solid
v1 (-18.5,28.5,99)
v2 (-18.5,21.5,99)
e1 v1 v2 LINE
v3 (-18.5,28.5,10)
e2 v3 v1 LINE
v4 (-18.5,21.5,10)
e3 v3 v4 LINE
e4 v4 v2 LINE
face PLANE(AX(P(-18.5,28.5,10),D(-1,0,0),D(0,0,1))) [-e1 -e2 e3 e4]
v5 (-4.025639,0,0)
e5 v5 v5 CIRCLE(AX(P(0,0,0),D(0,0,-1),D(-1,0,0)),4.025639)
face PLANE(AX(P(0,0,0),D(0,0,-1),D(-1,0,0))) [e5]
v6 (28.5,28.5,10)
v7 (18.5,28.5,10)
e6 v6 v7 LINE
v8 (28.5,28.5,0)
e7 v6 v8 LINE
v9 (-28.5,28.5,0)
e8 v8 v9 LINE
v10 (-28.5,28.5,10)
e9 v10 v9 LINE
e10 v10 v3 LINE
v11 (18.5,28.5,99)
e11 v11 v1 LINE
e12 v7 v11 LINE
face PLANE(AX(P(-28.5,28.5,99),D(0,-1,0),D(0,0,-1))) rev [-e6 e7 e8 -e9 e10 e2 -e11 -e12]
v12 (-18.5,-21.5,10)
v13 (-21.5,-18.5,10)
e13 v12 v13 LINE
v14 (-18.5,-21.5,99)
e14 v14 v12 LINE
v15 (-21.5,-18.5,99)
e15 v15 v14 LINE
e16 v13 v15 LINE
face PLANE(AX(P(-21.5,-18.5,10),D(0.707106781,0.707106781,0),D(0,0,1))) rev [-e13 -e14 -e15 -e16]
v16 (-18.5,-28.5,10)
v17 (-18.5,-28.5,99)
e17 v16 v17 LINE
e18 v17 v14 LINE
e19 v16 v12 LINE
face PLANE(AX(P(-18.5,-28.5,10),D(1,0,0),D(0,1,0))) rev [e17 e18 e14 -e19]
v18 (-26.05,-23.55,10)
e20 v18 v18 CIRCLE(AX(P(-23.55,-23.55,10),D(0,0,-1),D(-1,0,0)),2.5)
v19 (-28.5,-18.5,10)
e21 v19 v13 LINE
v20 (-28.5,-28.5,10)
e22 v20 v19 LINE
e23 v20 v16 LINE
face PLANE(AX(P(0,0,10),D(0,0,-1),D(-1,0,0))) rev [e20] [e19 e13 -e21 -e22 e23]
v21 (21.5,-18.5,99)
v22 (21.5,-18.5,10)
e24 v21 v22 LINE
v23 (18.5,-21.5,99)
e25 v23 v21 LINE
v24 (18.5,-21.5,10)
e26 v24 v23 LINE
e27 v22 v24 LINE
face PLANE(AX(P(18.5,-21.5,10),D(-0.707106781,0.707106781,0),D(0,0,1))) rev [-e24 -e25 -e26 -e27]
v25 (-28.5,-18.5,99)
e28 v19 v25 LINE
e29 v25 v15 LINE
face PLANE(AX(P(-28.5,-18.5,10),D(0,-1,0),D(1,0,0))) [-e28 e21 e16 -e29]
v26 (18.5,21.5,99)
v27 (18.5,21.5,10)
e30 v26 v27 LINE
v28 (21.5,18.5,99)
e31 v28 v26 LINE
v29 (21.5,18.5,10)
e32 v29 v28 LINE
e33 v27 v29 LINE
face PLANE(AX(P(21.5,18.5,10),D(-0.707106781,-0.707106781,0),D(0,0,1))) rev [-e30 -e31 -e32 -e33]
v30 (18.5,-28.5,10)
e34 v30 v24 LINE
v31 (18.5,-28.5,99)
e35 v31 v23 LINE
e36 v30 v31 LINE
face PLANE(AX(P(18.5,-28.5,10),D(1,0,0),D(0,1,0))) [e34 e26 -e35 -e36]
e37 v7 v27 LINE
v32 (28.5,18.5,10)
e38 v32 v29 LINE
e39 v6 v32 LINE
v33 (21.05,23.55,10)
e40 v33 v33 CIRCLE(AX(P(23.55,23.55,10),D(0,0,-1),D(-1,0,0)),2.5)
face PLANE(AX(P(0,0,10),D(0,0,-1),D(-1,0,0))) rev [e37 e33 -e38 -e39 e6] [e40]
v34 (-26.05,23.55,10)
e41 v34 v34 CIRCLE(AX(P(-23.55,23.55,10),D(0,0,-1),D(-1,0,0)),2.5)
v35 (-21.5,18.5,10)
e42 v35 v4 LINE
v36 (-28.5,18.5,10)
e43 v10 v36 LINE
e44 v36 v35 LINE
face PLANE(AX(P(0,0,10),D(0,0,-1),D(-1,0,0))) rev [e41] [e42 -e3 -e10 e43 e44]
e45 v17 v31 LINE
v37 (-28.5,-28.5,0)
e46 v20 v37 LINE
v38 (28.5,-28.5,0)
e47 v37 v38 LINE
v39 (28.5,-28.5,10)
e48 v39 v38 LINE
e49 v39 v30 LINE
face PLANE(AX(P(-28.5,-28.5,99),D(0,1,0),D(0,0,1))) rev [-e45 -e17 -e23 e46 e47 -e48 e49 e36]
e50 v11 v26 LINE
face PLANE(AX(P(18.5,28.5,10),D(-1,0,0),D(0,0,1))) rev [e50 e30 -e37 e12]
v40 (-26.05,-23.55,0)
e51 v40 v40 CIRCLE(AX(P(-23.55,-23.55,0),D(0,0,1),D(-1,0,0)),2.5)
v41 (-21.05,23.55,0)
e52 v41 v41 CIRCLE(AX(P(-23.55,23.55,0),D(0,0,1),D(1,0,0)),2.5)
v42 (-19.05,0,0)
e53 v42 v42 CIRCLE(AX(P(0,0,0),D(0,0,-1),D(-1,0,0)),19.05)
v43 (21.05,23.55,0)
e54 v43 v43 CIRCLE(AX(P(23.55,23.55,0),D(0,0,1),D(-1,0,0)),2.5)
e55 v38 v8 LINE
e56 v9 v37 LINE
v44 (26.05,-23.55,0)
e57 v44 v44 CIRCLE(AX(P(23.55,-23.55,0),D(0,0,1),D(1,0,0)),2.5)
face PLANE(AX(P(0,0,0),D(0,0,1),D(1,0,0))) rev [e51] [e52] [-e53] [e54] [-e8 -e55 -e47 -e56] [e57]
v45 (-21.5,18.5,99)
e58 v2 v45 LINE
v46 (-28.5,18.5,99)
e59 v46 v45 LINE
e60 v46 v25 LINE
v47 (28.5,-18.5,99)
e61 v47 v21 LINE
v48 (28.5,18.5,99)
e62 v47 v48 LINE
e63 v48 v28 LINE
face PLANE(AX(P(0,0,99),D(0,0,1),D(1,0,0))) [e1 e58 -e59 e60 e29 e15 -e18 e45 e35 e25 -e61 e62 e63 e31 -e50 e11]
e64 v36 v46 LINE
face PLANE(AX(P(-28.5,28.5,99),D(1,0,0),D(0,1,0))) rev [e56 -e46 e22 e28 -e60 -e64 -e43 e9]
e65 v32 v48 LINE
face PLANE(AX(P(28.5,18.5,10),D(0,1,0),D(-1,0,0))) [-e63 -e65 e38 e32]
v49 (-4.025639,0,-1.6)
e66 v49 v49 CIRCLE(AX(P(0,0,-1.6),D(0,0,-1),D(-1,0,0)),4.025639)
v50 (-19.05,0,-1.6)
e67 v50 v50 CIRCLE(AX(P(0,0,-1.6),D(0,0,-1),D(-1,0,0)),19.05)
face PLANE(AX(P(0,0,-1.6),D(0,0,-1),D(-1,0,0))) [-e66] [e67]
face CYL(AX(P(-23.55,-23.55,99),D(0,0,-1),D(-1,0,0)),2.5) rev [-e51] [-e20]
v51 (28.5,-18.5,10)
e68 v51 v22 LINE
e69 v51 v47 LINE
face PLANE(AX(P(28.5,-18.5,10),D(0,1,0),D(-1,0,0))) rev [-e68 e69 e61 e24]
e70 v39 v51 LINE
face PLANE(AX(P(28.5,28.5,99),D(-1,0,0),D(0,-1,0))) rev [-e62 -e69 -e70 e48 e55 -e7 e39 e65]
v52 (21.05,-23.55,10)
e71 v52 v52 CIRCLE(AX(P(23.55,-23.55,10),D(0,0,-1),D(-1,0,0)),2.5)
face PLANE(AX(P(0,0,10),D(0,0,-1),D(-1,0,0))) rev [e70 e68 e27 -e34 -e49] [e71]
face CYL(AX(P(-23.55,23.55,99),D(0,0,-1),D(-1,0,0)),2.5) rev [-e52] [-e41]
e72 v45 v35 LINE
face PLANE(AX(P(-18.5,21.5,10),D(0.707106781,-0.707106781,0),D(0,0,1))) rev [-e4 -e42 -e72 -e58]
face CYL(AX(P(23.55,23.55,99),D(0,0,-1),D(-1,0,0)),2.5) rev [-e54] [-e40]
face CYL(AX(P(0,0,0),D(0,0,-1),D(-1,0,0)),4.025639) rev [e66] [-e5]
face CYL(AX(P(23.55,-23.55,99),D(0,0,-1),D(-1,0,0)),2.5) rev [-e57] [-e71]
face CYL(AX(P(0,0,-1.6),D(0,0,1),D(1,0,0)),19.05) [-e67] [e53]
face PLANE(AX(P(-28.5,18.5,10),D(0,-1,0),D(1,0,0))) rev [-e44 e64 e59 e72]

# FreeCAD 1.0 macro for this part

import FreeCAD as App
import Part
import Sketcher
from FreeCAD import Vector


def edges_at(feature, points):
    """Names of the edges that pass closest to the given points."""
    edges = feature.Shape.Edges
    near = lambda p: min(range(len(edges)), key=lambda i: edges[i].distToShape(Part.Vertex(*p))[0])
    return sorted({f"Edge{near(p) + 1}" for p in points})


def add_polygon(sketch, points):
    """Adds a closed chain of lines whose ends are joined by coincident constraints."""
    first, n = sketch.GeometryCount, len(points)
    for a, b in zip(points, points[1:] + points[:1]):
        sketch.addGeometry(Part.LineSegment(App.Vector(*a, 0), App.Vector(*b, 0)), False)
    for i in range(n):
        sketch.addConstraint(Sketcher.Constraint("Coincident", first + i, 2, first + (i + 1) % n, 1))

doc = App.newDocument("Part")
body = doc.addObject("PartDesign::Body", "Body")

# Sketch on XY plane
sketch1 = doc.addObject("Sketcher::SketchObject", "Sketch")
body.addObject(sketch1)
sketch1.AttachmentSupport = (doc.XY_Plane, [""])
sketch1.MapMode = "FlatFace"
add_polygon(sketch1, [(-28.5, 28.5), (-28.5, -28.5), (28.5, -28.5), (28.5, 28.5)])  # lines 0-3
sketch1.addGeometry(Part.Circle(Vector(-23.6, -23.6, 0), Vector(0, 0, 1), 2.5), False)  # 4
sketch1.addGeometry(Part.Circle(Vector(23.6, -23.6, 0), Vector(0, 0, 1), 2.5), False)  # 5
sketch1.addGeometry(Part.Circle(Vector(-23.6, 23.6, 0), Vector(0, 0, 1), 2.5), False)  # 6
sketch1.addGeometry(Part.Circle(Vector(23.6, 23.6, 0), Vector(0, 0, 1), 2.5), False)  # 7
sketch1.addConstraint(Sketcher.Constraint("Vertical", 0))
sketch1.addConstraint(Sketcher.Constraint("Horizontal", 1))
sketch1.addConstraint(Sketcher.Constraint("Vertical", 2))
sketch1.addConstraint(Sketcher.Constraint("Horizontal", 3))
sketch1.addConstraint(Sketcher.Constraint("Equal", 4, 5))
sketch1.addConstraint(Sketcher.Constraint("Equal", 5, 6))
sketch1.addConstraint(Sketcher.Constraint("Equal", 6, 7))
sketch1.addConstraint(Sketcher.Constraint("Symmetric", 5, 3, 6, 3, -1, 1))
sketch1.addConstraint(Sketcher.Constraint("Symmetric", 4, 3, 7, 3, -1, 1))
sketch1.addConstraint(Sketcher.Constraint("Symmetric", 0, 2, 2, 2, -1, 1))
sketch1.addConstraint(Sketcher.Constraint("Symmetric", 4, 3, 5, 3, -2))
sketch1.addConstraint(Sketcher.Constraint("Equal", 3, 0))
sketch1.addConstraint(Sketcher.Constraint("Diameter", 4, 5.0))
sketch1.addConstraint(Sketcher.Constraint("DistanceX", 1, 1, 1, 2, 57.0))
sketch1.addConstraint(Sketcher.Constraint("DistanceX", 4, 3, 5, 3, 47.1))
sketch1.addConstraint(Sketcher.Constraint("DistanceY", 4, 3, 6, 3, 47.1))
pad1 = doc.addObject("PartDesign::Pad", "Pad")
body.addObject(pad1)
pad1.Profile = sketch1
pad1.Length = 99

# Sketch on XY plane
sketch2 = doc.addObject("Sketcher::SketchObject", "Sketch001")
body.addObject(sketch2)
sketch2.AttachmentSupport = (doc.XY_Plane, [""])
sketch2.MapMode = "FlatFace"
sketch2.AttachmentOffset = App.Placement(Vector(0, 0, 99), App.Rotation())
add_polygon(sketch2, [(-28, 28), (-28, 18), (-18, 18), (-18, 28)])  # lines 0-3
add_polygon(sketch2, [(-28, -18), (-28, -28), (-18, -28), (-18, -18)])  # lines 4-7
add_polygon(sketch2, [(18, -18), (18, -28), (28, -28), (28, -18)])  # lines 8-11
add_polygon(sketch2, [(18, 28), (18, 18), (28, 18), (28, 28)])  # lines 12-15
sketch2.addConstraint(Sketcher.Constraint("Vertical", 0))
sketch2.addConstraint(Sketcher.Constraint("Horizontal", 1))
sketch2.addConstraint(Sketcher.Constraint("Vertical", 2))
sketch2.addConstraint(Sketcher.Constraint("Horizontal", 3))
sketch2.addConstraint(Sketcher.Constraint("Vertical", 4))
sketch2.addConstraint(Sketcher.Constraint("Horizontal", 5))
sketch2.addConstraint(Sketcher.Constraint("Vertical", 6))
sketch2.addConstraint(Sketcher.Constraint("Horizontal", 7))
sketch2.addConstraint(Sketcher.Constraint("Vertical", 8))
sketch2.addConstraint(Sketcher.Constraint("Horizontal", 9))
sketch2.addConstraint(Sketcher.Constraint("Vertical", 10))
sketch2.addConstraint(Sketcher.Constraint("Horizontal", 11))
sketch2.addConstraint(Sketcher.Constraint("Vertical", 12))
sketch2.addConstraint(Sketcher.Constraint("Horizontal", 13))
sketch2.addConstraint(Sketcher.Constraint("Vertical", 14))
sketch2.addConstraint(Sketcher.Constraint("Horizontal", 15))
sketch2.addConstraint(Sketcher.Constraint("Symmetric", 2, 2, 8, 2, -1, 1))
sketch2.addConstraint(Sketcher.Constraint("Symmetric", 0, 2, 10, 2, -1, 1))
sketch2.addConstraint(Sketcher.Constraint("Symmetric", 6, 2, 12, 2, -1, 1))
sketch2.addConstraint(Sketcher.Constraint("Symmetric", 4, 2, 14, 2, -1, 1))
sketch2.addConstraint(Sketcher.Constraint("Symmetric", 5, 2, 8, 2, -2))
sketch2.addConstraint(Sketcher.Constraint("Symmetric", 7, 2, 10, 2, -2))
sketch2.addConstraint(Sketcher.Constraint("Equal", 15, 0))
sketch2.addConstraint(Sketcher.Constraint("DistanceX", 1, 1, 1, 2, 10.0))
sketch2.addConstraint(Sketcher.Constraint("DistanceY", 4, 2, 0, 2, 47.0))
sketch2.addConstraint(Sketcher.Constraint("DistanceX", 5, 2, 8, 2, 37.0))
pocket1 = doc.addObject("PartDesign::Pocket", "Pocket")
body.addObject(pocket1)
pocket1.Profile = sketch2
pocket1.Length = 89
doc.recompute()

chamfer = doc.addObject("PartDesign::Chamfer", "Chamfer")
body.addObject(chamfer)
chamfer.Base = (pocket1, edges_at(pocket1, [
    (-18.5, -18.5, 54.5),
    (18.5, -18.5, 54.5),
    (18.5, 18.5, 54.5),
    (-18.5, 18.5, 54.5),
]))
chamfer.Size = 3

# Sketch on XY plane
sketch3 = doc.addObject("Sketcher::SketchObject", "Sketch002")
body.addObject(sketch3)
sketch3.AttachmentSupport = (doc.XY_Plane, [""])
sketch3.MapMode = "FlatFace"
sketch3.addGeometry(Part.Circle(Vector(0, 0, 0), Vector(0, 0, 1), 19), False)
sketch3.addConstraint(Sketcher.Constraint("Coincident", 0, 3, -1, 1))
sketch3.addConstraint(Sketcher.Constraint("Diameter", 0, 38.1))
pad2 = doc.addObject("PartDesign::Pad", "Pad001")
body.addObject(pad2)
pad2.Profile = sketch3
pad2.Length = 1.6
pad2.Reversed = True

# Sketch on XY plane
sketch4 = doc.addObject("Sketcher::SketchObject", "Sketch003")
body.addObject(sketch4)
sketch4.AttachmentSupport = (doc.XY_Plane, [""])
sketch4.MapMode = "FlatFace"
sketch4.AttachmentOffset = App.Placement(Vector(0, 0, -1.6), App.Rotation())
sketch4.addGeometry(Part.Circle(Vector(0, 0, 0), Vector(0, 0, 1), 4), False)
sketch4.addConstraint(Sketcher.Constraint("Coincident", 0, 3, -1, 1))
sketch4.addConstraint(Sketcher.Constraint("Diameter", 0, 8.051278))
pocket2 = doc.addObject("PartDesign::Pocket", "Pocket001")
body.addObject(pocket2)
pocket2.Profile = sketch4
pocket2.Length = 1.6
pocket2.Reversed = True

doc.recompute()
